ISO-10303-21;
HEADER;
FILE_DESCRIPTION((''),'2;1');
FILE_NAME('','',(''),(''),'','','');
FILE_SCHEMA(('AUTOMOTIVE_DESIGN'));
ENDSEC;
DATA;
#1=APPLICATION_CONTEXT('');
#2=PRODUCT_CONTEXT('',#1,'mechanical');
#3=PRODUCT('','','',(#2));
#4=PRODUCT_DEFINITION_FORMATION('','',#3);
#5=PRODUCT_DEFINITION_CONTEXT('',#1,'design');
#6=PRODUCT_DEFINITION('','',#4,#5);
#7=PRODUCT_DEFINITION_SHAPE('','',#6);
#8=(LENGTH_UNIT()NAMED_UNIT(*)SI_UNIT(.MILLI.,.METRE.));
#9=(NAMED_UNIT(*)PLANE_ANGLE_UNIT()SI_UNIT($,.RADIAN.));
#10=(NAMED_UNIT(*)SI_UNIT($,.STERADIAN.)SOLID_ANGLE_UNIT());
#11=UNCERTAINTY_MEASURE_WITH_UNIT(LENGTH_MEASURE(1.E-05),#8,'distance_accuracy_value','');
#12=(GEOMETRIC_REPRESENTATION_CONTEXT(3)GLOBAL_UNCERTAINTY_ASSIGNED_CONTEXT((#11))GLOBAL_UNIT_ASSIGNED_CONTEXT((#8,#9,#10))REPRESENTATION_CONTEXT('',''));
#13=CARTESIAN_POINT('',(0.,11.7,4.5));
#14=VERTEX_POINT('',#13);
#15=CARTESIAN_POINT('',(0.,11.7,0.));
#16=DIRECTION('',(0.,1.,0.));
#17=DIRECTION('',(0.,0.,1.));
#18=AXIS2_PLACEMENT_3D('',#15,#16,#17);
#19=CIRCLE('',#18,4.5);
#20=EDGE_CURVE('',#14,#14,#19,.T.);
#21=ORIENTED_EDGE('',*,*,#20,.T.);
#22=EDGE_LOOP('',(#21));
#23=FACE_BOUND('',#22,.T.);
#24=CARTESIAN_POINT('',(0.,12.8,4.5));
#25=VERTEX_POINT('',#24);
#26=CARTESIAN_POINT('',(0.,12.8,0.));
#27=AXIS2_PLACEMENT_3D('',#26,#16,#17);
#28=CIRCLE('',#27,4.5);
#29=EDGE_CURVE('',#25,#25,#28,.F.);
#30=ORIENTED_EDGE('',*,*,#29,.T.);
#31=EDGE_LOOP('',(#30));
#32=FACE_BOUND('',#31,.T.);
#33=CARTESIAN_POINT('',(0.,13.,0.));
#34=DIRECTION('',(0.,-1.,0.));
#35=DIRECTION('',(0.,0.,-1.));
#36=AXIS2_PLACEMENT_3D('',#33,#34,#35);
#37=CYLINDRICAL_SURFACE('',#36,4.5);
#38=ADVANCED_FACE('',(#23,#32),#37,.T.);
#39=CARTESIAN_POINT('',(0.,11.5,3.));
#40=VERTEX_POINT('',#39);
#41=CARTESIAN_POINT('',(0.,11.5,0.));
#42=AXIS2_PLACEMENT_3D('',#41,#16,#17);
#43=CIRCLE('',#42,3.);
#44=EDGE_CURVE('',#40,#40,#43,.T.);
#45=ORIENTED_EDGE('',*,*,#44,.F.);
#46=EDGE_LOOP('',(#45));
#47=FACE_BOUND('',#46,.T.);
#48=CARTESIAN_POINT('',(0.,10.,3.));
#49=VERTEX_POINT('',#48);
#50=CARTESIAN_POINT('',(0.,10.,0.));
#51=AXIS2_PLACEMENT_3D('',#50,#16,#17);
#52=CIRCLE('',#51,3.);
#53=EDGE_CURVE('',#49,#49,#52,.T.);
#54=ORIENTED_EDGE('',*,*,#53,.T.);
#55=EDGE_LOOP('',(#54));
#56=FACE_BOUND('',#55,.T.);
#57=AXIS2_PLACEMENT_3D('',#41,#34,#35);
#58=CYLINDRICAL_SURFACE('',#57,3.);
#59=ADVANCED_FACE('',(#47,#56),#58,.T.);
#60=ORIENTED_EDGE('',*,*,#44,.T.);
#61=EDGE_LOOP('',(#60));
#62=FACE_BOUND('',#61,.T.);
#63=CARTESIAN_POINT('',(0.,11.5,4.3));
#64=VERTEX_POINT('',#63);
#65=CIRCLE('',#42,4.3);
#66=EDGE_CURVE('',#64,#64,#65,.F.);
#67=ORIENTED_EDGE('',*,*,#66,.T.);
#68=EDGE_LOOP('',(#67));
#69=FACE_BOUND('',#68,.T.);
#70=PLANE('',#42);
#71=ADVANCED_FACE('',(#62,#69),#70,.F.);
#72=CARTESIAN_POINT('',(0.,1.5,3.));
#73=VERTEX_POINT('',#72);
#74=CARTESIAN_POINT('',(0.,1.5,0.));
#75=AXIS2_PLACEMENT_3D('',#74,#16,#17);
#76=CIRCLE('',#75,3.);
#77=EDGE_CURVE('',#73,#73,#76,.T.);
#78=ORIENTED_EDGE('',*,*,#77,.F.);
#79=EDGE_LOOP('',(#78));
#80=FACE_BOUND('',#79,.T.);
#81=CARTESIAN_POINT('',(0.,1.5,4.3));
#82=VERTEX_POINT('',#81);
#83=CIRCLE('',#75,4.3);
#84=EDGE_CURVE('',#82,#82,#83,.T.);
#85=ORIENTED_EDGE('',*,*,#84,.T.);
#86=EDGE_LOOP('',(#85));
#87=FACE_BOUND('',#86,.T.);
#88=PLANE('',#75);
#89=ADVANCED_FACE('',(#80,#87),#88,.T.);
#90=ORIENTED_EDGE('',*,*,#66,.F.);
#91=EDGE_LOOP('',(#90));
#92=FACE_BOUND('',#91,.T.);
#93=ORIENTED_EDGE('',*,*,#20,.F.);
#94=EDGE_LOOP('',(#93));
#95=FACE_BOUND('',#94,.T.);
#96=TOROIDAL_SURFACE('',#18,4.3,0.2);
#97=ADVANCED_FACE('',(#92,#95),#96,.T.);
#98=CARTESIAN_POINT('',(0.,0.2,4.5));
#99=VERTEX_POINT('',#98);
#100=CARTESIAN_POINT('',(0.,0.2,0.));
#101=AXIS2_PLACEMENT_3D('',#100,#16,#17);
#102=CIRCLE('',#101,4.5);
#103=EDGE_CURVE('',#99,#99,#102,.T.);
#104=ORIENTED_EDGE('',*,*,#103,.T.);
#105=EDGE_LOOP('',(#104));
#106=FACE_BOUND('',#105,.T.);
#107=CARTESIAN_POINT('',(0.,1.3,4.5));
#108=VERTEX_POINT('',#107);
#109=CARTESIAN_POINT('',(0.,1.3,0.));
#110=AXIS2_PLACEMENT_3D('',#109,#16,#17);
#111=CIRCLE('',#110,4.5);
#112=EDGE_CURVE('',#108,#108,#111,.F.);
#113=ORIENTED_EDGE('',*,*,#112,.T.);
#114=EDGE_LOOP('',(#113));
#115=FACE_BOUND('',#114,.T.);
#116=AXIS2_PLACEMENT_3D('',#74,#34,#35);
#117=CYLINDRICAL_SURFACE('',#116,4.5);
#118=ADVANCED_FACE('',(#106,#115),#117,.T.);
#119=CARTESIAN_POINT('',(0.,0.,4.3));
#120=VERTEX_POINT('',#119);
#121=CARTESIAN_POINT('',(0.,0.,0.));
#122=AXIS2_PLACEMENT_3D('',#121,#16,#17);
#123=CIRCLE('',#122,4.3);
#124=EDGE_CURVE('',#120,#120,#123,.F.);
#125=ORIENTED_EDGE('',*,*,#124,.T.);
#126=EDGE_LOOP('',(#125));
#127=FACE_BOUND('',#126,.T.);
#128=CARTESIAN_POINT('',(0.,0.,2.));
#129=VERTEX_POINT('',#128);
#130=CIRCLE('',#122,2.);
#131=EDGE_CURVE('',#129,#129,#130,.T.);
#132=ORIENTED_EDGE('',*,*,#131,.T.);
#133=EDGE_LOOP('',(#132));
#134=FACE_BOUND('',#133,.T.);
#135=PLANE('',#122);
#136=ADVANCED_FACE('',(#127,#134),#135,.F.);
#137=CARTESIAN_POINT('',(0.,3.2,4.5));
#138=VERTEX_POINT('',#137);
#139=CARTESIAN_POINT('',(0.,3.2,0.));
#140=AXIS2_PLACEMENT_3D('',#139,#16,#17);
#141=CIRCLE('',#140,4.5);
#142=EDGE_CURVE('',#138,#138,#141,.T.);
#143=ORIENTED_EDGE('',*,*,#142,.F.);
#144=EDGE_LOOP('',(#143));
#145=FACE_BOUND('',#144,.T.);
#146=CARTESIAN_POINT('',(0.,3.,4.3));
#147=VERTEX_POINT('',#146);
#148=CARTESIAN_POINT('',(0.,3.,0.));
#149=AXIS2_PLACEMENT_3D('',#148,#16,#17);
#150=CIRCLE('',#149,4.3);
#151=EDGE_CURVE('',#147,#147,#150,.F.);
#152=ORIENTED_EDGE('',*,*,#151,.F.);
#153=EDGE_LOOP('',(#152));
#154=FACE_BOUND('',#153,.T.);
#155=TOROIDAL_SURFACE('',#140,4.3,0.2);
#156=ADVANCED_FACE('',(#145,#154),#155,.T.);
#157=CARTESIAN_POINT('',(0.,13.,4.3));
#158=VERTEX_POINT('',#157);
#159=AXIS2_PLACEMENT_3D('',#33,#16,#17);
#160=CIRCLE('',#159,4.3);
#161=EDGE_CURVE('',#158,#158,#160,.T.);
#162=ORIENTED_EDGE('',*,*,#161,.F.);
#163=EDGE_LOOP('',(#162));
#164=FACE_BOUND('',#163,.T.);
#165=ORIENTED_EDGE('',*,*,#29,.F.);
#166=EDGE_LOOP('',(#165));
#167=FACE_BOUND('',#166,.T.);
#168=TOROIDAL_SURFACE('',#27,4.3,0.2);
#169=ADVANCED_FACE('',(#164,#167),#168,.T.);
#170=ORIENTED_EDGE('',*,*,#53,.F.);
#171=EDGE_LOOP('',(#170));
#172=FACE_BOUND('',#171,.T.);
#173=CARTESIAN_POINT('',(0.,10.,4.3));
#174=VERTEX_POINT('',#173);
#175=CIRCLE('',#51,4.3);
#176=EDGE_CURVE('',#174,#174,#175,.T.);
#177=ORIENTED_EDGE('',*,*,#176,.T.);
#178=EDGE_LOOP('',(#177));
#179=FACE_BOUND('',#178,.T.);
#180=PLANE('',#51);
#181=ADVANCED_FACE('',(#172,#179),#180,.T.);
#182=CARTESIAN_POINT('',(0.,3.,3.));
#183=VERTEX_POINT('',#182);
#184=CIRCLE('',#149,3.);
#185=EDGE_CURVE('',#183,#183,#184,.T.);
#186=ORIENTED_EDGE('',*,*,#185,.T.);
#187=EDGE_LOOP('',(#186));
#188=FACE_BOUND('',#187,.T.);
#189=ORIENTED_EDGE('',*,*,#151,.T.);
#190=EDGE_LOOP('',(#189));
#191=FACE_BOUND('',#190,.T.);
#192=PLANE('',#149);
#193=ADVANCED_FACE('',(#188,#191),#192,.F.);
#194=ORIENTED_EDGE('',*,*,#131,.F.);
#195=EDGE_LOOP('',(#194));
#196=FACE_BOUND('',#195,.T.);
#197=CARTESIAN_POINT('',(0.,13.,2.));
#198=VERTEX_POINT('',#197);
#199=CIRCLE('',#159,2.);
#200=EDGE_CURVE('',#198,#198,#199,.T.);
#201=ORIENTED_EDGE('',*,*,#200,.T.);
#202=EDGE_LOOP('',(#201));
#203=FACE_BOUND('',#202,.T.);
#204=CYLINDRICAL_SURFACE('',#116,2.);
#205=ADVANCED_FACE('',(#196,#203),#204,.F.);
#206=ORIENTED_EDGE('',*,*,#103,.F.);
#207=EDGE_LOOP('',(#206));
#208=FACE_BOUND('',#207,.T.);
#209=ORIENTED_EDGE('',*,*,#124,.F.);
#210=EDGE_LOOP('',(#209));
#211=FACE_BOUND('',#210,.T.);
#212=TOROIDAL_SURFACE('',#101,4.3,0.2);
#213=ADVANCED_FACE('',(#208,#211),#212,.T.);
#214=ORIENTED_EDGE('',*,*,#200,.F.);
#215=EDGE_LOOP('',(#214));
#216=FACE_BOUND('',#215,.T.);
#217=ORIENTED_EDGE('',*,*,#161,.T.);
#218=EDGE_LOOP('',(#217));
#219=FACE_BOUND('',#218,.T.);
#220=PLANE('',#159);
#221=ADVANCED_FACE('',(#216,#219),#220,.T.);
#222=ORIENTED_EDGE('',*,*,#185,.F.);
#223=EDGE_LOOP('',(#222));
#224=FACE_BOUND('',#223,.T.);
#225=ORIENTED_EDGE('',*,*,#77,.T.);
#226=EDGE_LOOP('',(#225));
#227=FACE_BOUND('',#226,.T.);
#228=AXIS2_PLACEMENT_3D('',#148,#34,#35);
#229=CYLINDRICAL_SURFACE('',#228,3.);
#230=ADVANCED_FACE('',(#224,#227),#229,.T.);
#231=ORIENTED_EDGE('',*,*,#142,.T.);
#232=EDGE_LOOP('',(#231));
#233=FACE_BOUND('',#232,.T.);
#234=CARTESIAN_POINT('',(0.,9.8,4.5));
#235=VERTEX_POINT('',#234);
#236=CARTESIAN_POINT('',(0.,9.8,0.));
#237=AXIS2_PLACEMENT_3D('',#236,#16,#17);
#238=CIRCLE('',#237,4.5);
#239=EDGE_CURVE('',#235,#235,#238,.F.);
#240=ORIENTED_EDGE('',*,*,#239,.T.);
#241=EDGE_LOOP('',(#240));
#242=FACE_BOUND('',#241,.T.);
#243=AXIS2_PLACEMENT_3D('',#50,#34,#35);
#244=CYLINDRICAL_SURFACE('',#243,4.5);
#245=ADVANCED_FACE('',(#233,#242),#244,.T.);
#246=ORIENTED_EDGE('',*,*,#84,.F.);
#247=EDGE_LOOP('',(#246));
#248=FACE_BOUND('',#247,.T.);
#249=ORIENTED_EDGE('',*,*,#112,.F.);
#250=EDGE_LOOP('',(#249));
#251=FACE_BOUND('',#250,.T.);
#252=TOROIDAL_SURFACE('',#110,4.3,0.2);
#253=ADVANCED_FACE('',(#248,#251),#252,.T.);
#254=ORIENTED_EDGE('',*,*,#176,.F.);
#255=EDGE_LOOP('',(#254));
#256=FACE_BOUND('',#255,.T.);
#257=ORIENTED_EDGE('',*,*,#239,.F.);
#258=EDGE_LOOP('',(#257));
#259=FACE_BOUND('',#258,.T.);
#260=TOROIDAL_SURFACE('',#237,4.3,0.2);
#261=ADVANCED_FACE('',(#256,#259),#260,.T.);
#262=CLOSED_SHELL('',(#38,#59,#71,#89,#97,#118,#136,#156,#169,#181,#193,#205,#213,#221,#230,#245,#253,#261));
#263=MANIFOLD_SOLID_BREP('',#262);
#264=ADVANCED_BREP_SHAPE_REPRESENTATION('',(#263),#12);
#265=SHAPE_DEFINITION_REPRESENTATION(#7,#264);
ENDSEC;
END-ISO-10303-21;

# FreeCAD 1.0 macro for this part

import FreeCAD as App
import Part
import Sketcher

V = App.Vector


def edges_at(feature, points):
    """Names of the edges that pass closest to the given points."""
    edges = feature.Shape.Edges
    near = lambda p: min(range(len(edges)), key=lambda i: edges[i].distToShape(Part.Vertex(*p))[0])
    return sorted({f"Edge{near(p) + 1}" for p in points})

doc = App.newDocument("Part")
body = doc.addObject("PartDesign::Body", "Body")

# Sketch on XZ plane
sketch1 = body.newObject("Sketcher::SketchObject", "Sketch")
sketch1.AttachmentSupport = (doc.getObject("XZ_Plane"), [""])
sketch1.MapMode = "FlatFace"
sketch1.addGeometry([
    Part.Circle(V(0, 0, 0), V(0, 0, 1), 4.5),
    Part.Circle(V(0, 0, 0), V(0, 0, 1), 2),
], False)
sketch1.addConstraint([
    Sketcher.Constraint("Coincident", 0, 3, -1, 1),
    Sketcher.Constraint("Coincident", 1, 3, -1, 1),
    Sketcher.Constraint("Diameter", 0, 9.0),
    Sketcher.Constraint("Diameter", 1, 4.0),
])
pad1 = body.newObject("PartDesign::Pad", "Pad")
pad1.Profile = sketch1
pad1.Length = 1.5
pad1.Reversed = True

# Sketch on XZ plane
sketch2 = body.newObject("Sketcher::SketchObject", "Sketch001")
sketch2.AttachmentSupport = (doc.getObject("XZ_Plane"), [""])
sketch2.MapMode = "FlatFace"
sketch2.AttachmentOffset = App.Placement(V(0, 0, -1.5), App.Rotation())
sketch2.addGeometry([
    Part.Circle(V(0, 0, 0), V(0, 0, 1), 3),
    Part.Circle(V(0, 0, 0), V(0, 0, 1), 2),
], False)
sketch2.addConstraint([
    Sketcher.Constraint("Coincident", 0, 3, -1, 1),
    Sketcher.Constraint("Coincident", 1, 3, -1, 1),
    Sketcher.Constraint("Diameter", 0, 6.0),
    Sketcher.Constraint("Diameter", 1, 4.0),
])
pad2 = body.newObject("PartDesign::Pad", "Pad001")
pad2.Profile = sketch2
pad2.Length = 1.5
pad2.Reversed = True

# Sketch on XZ plane
sketch3 = body.newObject("Sketcher::SketchObject", "Sketch002")
sketch3.AttachmentSupport = (doc.getObject("XZ_Plane"), [""])
sketch3.MapMode = "FlatFace"
sketch3.AttachmentOffset = App.Placement(V(0, 0, -3), App.Rotation())
sketch3.addGeometry([
    Part.Circle(V(0, 0, 0), V(0, 0, 1), 4.5),
    Part.Circle(V(0, 0, 0), V(0, 0, 1), 2),
], False)
sketch3.addConstraint([
    Sketcher.Constraint("Coincident", 0, 3, -1, 1),
    Sketcher.Constraint("Coincident", 1, 3, -1, 1),
    Sketcher.Constraint("Diameter", 0, 9.0),
    Sketcher.Constraint("Diameter", 1, 4.0),
])
pad3 = body.newObject("PartDesign::Pad", "Pad002")
pad3.Profile = sketch3
pad3.Length = 7
pad3.Reversed = True

# Sketch on XZ plane
sketch4 = body.newObject("Sketcher::SketchObject", "Sketch003")
sketch4.AttachmentSupport = (doc.getObject("XZ_Plane"), [""])
sketch4.MapMode = "FlatFace"
sketch4.AttachmentOffset = App.Placement(V(0, 0, -10), App.Rotation())
sketch4.addGeometry([
    Part.Circle(V(0, 0, 0), V(0, 0, 1), 3),
    Part.Circle(V(0, 0, 0), V(0, 0, 1), 2),
], False)
sketch4.addConstraint([
    Sketcher.Constraint("Coincident", 0, 3, -1, 1),
    Sketcher.Constraint("Coincident", 1, 3, -1, 1),
    Sketcher.Constraint("Diameter", 0, 6.0),
    Sketcher.Constraint("Diameter", 1, 4.0),
])
pad4 = body.newObject("PartDesign::Pad", "Pad003")
pad4.Profile = sketch4
pad4.Length = 1.5
pad4.Reversed = True

# Sketch on XZ plane
sketch5 = body.newObject("Sketcher::SketchObject", "Sketch004")
sketch5.AttachmentSupport = (doc.getObject("XZ_Plane"), [""])
sketch5.MapMode = "FlatFace"
sketch5.AttachmentOffset = App.Placement(V(0, 0, -11.5), App.Rotation())
sketch5.addGeometry([
    Part.Circle(V(0, 0, 0), V(0, 0, 1), 4.5),
    Part.Circle(V(0, 0, 0), V(0, 0, 1), 2),
], False)
sketch5.addConstraint([
    Sketcher.Constraint("Coincident", 0, 3, -1, 1),
    Sketcher.Constraint("Coincident", 1, 3, -1, 1),
    Sketcher.Constraint("Diameter", 0, 9.0),
    Sketcher.Constraint("Diameter", 1, 4.0),
])
pad5 = body.newObject("PartDesign::Pad", "Pad004")
pad5.Profile = sketch5
pad5.Length = 1.5
pad5.Reversed = True
doc.recompute()

fillet = body.newObject("PartDesign::Fillet", "Fillet")
fillet.Base = (pad5, edges_at(pad5, [
    (0, 10, -4.5),
    (0, 3, -4.5),
    (0, 0, -4.5),
    (0, 13, -4.5),
    (0, 11.5, -4.5),
    (0, 1.5, -4.5),
]))
fillet.Radius = 0.2

doc.recompute()
